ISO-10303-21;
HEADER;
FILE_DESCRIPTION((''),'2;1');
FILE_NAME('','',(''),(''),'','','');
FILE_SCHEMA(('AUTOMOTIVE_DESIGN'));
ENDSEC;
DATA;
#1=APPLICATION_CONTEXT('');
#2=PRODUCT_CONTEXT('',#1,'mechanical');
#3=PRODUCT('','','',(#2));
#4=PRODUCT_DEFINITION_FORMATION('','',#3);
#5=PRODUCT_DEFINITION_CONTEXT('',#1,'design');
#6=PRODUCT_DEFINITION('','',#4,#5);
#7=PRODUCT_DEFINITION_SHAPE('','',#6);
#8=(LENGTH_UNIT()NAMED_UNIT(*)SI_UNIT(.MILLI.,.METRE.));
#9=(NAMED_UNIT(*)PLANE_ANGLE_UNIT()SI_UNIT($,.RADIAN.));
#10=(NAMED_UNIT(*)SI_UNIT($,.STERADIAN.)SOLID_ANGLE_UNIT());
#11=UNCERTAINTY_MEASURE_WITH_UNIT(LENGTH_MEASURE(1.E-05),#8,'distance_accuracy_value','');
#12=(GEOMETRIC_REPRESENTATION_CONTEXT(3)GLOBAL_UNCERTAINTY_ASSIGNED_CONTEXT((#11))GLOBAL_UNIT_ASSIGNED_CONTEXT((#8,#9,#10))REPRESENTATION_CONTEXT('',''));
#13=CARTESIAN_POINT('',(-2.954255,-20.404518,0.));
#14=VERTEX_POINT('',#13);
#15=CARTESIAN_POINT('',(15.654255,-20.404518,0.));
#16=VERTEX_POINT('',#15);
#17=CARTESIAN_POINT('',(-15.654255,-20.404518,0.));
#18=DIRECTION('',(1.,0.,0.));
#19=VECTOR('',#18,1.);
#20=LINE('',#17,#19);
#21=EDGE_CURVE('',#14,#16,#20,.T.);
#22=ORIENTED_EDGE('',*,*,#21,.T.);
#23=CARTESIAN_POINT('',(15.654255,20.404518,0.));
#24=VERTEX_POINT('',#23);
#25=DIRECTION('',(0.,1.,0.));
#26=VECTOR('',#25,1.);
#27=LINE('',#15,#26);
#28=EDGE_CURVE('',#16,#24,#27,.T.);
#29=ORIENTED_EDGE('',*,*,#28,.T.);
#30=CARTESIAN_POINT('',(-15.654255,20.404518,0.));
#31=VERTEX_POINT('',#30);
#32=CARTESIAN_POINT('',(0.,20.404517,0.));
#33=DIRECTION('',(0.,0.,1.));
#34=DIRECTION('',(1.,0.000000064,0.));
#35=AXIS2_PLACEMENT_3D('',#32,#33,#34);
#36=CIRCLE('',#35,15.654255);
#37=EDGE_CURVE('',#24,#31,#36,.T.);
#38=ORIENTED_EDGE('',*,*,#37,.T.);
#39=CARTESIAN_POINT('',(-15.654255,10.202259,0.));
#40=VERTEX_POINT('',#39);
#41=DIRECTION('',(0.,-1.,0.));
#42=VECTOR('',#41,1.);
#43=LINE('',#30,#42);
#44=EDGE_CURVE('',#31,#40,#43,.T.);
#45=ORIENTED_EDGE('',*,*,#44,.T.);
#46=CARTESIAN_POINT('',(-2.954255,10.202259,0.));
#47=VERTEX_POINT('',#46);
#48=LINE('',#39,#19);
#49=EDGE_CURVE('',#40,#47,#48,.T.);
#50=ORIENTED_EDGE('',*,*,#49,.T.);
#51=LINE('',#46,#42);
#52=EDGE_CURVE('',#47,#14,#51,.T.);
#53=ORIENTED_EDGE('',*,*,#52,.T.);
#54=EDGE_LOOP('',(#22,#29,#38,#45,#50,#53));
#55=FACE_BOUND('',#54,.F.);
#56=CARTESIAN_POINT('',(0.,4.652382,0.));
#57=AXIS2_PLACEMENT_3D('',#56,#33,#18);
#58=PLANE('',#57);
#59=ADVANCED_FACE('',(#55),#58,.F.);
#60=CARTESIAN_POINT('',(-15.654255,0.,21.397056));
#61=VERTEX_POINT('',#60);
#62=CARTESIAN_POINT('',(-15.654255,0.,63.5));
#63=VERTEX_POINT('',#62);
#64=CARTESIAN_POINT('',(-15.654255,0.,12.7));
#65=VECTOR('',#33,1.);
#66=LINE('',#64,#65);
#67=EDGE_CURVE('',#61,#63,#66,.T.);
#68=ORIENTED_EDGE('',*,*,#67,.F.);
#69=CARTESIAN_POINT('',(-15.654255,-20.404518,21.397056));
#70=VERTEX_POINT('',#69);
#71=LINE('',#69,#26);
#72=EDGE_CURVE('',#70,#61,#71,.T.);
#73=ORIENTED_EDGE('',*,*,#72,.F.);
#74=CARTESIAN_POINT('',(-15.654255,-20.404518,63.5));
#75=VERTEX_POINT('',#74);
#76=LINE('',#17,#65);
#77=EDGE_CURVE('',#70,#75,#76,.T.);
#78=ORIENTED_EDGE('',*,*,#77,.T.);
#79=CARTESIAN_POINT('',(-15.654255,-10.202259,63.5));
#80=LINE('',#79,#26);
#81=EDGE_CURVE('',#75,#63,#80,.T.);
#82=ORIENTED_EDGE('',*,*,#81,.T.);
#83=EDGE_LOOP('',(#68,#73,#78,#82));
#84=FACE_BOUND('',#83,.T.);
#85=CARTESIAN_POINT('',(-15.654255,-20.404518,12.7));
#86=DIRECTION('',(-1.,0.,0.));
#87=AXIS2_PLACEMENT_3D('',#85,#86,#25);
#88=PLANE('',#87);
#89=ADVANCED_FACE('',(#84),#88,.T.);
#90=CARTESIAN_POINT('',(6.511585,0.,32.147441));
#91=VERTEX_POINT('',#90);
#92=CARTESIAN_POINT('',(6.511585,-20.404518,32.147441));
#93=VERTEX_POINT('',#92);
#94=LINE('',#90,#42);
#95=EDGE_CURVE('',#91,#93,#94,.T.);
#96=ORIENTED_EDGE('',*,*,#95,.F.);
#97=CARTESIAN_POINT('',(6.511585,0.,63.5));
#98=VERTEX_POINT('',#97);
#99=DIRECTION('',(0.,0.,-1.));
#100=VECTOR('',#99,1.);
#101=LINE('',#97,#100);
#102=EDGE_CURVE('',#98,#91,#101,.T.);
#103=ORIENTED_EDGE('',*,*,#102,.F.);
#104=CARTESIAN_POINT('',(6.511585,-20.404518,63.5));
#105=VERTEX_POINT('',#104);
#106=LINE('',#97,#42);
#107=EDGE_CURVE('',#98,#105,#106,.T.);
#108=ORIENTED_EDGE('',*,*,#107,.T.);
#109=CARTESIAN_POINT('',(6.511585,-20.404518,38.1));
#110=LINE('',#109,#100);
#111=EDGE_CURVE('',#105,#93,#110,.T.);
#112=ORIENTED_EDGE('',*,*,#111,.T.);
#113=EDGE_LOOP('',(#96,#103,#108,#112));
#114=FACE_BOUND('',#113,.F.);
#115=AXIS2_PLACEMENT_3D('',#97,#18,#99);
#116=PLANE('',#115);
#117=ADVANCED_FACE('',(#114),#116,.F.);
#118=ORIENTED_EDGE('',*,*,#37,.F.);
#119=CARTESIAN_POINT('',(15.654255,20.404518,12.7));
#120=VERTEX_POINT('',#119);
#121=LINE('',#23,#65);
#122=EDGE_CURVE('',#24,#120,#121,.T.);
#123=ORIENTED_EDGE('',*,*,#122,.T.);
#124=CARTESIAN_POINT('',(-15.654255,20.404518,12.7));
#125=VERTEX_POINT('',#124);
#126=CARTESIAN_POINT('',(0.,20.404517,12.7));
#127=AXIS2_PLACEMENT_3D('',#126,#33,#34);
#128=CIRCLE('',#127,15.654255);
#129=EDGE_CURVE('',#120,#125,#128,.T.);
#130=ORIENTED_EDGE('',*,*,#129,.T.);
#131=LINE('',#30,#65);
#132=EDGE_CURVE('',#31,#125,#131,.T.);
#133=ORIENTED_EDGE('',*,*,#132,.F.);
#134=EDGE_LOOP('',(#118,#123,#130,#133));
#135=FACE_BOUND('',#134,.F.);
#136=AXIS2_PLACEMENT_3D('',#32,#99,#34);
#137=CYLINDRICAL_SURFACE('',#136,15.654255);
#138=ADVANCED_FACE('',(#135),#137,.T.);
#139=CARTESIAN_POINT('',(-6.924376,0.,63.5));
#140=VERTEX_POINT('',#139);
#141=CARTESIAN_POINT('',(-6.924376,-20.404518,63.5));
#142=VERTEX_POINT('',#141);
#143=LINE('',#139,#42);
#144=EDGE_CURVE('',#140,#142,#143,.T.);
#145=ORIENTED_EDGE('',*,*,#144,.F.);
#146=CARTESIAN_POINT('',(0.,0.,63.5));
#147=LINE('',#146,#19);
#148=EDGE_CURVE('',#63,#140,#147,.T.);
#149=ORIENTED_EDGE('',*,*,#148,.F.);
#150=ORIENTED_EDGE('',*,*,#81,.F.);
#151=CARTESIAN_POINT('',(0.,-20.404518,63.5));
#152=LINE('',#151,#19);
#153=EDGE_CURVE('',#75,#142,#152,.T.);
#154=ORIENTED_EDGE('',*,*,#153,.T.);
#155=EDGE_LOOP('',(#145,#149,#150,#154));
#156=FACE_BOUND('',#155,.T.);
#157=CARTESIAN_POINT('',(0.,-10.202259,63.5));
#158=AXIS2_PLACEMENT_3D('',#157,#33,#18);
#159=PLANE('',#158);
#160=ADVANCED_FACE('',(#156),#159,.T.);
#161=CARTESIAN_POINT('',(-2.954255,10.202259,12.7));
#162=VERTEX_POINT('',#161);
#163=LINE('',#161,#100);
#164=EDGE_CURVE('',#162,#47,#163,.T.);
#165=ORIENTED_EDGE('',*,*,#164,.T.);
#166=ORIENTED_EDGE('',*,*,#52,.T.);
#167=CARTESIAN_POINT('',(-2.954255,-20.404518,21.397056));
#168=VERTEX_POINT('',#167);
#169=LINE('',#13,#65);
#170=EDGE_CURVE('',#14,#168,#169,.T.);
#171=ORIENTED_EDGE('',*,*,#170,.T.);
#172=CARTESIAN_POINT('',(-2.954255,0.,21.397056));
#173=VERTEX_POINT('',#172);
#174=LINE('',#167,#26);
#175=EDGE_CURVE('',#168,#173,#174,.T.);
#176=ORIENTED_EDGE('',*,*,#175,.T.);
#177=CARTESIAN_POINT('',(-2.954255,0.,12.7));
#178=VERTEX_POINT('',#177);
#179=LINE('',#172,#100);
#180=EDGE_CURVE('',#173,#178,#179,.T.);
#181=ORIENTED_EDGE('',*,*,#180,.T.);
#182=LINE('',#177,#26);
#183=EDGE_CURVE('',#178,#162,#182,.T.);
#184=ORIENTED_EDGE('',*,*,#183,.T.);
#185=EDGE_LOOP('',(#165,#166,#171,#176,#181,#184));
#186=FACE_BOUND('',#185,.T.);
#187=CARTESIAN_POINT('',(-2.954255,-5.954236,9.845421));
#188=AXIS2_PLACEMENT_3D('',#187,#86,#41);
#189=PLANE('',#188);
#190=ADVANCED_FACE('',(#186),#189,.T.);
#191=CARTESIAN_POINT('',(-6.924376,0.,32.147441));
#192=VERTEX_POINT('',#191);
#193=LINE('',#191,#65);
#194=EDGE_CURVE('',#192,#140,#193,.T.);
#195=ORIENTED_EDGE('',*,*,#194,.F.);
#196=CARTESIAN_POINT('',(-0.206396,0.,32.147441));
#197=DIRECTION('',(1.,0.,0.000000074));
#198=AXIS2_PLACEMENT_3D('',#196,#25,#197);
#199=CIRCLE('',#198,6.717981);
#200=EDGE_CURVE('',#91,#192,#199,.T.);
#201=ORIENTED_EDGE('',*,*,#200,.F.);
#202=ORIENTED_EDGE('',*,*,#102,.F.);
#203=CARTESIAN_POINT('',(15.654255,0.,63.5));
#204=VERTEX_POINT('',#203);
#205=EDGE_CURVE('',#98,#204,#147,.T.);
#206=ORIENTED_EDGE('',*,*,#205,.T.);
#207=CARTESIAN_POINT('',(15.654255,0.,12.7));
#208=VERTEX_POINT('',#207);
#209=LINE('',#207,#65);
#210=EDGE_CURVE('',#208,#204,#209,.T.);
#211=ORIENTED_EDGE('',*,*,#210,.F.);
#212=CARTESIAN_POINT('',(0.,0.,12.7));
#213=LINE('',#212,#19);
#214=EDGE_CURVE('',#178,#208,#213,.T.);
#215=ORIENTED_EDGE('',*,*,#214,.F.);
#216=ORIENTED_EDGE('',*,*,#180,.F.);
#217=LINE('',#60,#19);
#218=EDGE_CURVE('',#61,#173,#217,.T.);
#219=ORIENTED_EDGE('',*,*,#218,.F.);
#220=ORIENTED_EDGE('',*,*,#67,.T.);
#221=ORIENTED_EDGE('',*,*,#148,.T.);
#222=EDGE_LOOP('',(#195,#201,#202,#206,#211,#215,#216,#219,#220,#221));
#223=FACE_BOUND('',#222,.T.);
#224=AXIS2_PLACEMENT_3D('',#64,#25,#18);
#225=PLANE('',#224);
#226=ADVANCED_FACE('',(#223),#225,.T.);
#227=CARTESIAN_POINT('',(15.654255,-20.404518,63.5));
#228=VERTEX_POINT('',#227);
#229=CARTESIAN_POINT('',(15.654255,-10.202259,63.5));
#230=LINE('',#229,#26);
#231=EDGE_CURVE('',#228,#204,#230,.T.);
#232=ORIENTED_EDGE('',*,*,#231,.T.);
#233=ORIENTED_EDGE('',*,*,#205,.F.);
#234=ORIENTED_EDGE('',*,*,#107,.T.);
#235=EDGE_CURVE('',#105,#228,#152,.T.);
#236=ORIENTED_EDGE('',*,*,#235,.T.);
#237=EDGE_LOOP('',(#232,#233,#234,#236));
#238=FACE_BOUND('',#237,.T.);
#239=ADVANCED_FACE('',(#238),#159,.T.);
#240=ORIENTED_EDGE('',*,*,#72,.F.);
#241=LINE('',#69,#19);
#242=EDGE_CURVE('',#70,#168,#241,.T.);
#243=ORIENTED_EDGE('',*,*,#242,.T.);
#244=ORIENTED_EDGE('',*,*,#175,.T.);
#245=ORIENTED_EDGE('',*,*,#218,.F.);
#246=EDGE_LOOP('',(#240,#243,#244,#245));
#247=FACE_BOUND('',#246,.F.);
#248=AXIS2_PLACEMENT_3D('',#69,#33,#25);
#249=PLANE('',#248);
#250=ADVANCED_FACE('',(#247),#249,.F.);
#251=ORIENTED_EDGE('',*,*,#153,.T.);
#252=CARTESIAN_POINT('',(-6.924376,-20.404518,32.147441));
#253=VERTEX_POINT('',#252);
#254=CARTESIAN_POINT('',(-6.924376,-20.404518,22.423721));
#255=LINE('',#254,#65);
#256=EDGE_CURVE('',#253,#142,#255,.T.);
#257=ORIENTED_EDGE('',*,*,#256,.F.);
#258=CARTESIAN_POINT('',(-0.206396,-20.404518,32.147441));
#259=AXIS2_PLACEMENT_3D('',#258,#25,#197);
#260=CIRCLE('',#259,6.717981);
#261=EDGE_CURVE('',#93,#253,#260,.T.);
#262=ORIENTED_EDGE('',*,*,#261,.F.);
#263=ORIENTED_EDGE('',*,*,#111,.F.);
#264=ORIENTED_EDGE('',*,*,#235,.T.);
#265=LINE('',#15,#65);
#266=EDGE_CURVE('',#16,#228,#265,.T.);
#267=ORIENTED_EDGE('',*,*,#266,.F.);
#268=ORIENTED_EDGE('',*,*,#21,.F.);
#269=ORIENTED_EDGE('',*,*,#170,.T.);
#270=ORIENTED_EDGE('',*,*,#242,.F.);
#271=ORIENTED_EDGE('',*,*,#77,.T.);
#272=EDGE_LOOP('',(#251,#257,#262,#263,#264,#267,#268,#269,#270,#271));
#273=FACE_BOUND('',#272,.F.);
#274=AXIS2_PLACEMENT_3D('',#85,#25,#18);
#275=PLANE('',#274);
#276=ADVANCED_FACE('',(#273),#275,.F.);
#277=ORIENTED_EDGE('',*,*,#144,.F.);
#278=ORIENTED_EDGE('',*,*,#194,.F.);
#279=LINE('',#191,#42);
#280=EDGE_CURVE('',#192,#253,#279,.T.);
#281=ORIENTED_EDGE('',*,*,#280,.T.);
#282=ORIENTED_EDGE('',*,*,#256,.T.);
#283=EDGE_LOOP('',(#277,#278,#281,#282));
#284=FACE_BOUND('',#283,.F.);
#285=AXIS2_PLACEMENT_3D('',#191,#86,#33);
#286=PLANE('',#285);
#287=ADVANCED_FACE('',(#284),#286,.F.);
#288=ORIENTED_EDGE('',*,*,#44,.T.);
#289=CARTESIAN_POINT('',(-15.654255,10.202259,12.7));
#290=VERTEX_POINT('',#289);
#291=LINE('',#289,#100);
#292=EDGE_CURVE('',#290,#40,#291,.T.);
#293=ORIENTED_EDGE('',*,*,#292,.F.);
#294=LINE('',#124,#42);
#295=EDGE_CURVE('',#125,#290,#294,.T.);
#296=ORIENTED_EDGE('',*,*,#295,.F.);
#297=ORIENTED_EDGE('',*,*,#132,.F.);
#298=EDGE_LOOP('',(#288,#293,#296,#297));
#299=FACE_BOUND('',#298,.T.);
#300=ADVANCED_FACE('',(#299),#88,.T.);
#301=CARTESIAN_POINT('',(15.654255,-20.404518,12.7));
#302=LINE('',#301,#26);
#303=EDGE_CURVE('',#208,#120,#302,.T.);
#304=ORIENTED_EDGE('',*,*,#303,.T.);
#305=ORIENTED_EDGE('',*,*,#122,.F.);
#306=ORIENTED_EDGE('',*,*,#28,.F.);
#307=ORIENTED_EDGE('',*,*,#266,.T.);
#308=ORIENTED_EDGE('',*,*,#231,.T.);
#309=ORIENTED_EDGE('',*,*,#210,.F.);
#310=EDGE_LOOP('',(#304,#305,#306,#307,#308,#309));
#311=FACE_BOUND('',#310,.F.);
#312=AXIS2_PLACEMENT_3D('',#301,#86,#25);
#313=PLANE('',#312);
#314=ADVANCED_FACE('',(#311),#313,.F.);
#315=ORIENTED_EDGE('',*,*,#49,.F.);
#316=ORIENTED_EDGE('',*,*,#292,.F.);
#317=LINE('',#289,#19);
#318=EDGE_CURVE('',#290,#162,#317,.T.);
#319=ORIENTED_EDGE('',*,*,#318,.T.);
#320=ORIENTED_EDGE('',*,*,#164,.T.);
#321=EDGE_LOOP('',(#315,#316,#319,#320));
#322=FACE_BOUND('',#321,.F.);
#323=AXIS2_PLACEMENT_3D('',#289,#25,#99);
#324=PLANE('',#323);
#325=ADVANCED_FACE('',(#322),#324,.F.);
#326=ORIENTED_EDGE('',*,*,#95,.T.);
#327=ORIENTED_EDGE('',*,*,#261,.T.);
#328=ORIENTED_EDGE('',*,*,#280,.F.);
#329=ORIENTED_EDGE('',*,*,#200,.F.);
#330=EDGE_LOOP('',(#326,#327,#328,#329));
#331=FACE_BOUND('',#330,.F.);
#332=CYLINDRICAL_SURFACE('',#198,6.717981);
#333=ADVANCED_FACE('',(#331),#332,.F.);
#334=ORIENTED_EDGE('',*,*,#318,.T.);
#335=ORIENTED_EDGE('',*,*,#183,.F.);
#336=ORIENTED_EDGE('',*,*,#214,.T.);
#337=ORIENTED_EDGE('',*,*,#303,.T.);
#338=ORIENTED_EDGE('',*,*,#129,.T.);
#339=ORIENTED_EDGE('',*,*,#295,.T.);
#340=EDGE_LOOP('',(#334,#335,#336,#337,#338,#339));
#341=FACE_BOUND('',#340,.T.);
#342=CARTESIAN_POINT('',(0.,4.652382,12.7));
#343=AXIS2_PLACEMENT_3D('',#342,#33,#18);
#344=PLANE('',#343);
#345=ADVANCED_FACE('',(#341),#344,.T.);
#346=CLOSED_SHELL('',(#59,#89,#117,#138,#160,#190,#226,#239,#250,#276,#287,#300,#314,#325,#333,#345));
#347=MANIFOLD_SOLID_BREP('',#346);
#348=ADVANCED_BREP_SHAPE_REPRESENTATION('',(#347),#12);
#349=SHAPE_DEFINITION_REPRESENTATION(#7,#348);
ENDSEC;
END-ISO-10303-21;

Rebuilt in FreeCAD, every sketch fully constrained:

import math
import FreeCAD as App
import Part
import Sketcher
from FreeCAD import Vector
Q = App.Units.Quantity

doc = App.newDocument("Part")
body = doc.addObject("PartDesign::Body", "Body")

sketch1 = body.newObject("Sketcher::SketchObject", "Sketch")
sketch1.AttachmentSupport = (doc.getObject("XY_Plane"), [""])
sketch1.MapMode = "FlatFace"
sketch1.addGeometry([
    Part.LineSegment(Vector(-16, -20, 0), Vector(16, -20, 0)),
    Part.LineSegment(Vector(16, -20, 0), Vector(16, 20, 0)),
    Part.ArcOfCircle(Part.Circle(Vector(0, 20, 0), Vector(0, 0, 1), 16), math.radians(0), math.radians(180)),
    Part.LineSegment(Vector(-16, 20, 0), Vector(-16, -20, 0)),
], False)
sketch1.addConstraint([
    Sketcher.Constraint("Coincident", 0, 2, 1, 1),
    Sketcher.Constraint("Tangent", 1, 2, 2, 1),
    Sketcher.Constraint("Tangent", 2, 2, 3, 1),
    Sketcher.Constraint("Coincident", 3, 2, 0, 1),
    Sketcher.Constraint("Horizontal", 0),
    Sketcher.Constraint("Vertical", 1),
    Sketcher.Constraint("Vertical", 3),
    Sketcher.Constraint("Symmetric", 0, 2, 2, 2, -1, 1),
    Sketcher.Constraint("Radius", 2, 15.654255),
    Sketcher.Constraint("DistanceY", 1, 1, 1, 2, 40.809036),
])
pad1 = body.newObject("PartDesign::Pad", "Pad")
pad1.Profile = sketch1
pad1.Length = Q("0.5 in")

sketch2 = body.newObject("Sketcher::SketchObject", "Sketch001")
sketch2.AttachmentSupport = (doc.getObject("XY_Plane"), [""])
sketch2.MapMode = "FlatFace"
sketch2.AttachmentOffset = App.Placement(Vector(0, 0, 0.5 * 25.4), App.Rotation())
sketch2.addGeometry([
    Part.LineSegment(Vector(-16, 0, 0), Vector(-16, -20, 0)),
    Part.LineSegment(Vector(-16, -20, 0), Vector(16, -20, 0)),
    Part.LineSegment(Vector(16, -20, 0), Vector(16, 0, 0)),
    Part.LineSegment(Vector(16, 0, 0), Vector(-16, 0, 0)),
], False)
sketch2.addConstraint([
    Sketcher.Constraint("Coincident", 0, 2, 1, 1),
    Sketcher.Constraint("Coincident", 1, 2, 2, 1),
    Sketcher.Constraint("Coincident", 2, 2, 3, 1),
    Sketcher.Constraint("Coincident", 3, 2, 0, 1),
    Sketcher.Constraint("Vertical", 0),
    Sketcher.Constraint("Horizontal", 1),
    Sketcher.Constraint("Vertical", 2),
    Sketcher.Constraint("Horizontal", 3),
    Sketcher.Constraint("Symmetric", 2, 2, 3, 2, -1, 1),
    Sketcher.Constraint("DistanceX", 1, 1, 1, 2, 31.30851),
    Sketcher.Constraint("DistanceY", 0, 2, 0, 1, 20.404518),
])
pad2 = body.newObject("PartDesign::Pad", "Pad001")
pad2.Profile = sketch2
pad2.Length = Q("2 in")

sketch3 = body.newObject("Sketcher::SketchObject", "Sketch002")
sketch3.AttachmentSupport = (doc.getObject("XZ_Plane"), [""])
sketch3.MapMode = "FlatFace"
sketch3.addGeometry([
    Part.LineSegment(Vector(-7, 64, 0), Vector(7, 64, 0)),
    Part.LineSegment(Vector(7, 64, 0), Vector(7, 32, 0)),
    Part.ArcOfCircle(Part.Circle(Vector(0, 32, 0), Vector(0, 0, 1), 7), math.radians(180), math.radians(360)),
    Part.LineSegment(Vector(-7, 32, 0), Vector(-7, 64, 0)),
], False)
sketch3.addConstraint([
    Sketcher.Constraint("Coincident", 0, 2, 1, 1),
    Sketcher.Constraint("Tangent", 1, 2, 2, 2),
    Sketcher.Constraint("Tangent", 2, 1, 3, 1),
    Sketcher.Constraint("Coincident", 3, 2, 0, 1),
    Sketcher.Constraint("Horizontal", 0),
    Sketcher.Constraint("Vertical", 1),
    Sketcher.Constraint("Vertical", 3),
    Sketcher.Constraint("DistanceY", -1, 1, 0, 2, Q("2.5 in")),
    Sketcher.Constraint("Radius", 2, 6.717981),
    Sketcher.Constraint("DistanceY", 1, 2, 1, 1, 31.352559),
    Sketcher.Constraint("DistanceX", 2, 3, -1, 1, 0.206396),
])
pocket1 = body.newObject("PartDesign::Pocket", "Pocket")
pocket1.Profile = sketch3
pocket1.Length = Q("1 in")
pocket1.Reversed = True

sketch4 = body.newObject("Sketcher::SketchObject", "Sketch003")
sketch4.AttachmentSupport = (doc.getObject("YZ_Plane"), [""])
sketch4.MapMode = "FlatFace"
sketch4.AttachmentOffset = App.Placement(Vector(0, 0, -15.654255), App.Rotation())
sketch4.addGeometry([
    Part.LineSegment(Vector(0, 13, 0), Vector(10, 13, 0)),
    Part.LineSegment(Vector(10, 13, 0), Vector(10, 0, 0)),
    Part.LineSegment(Vector(10, 0, 0), Vector(-20, 0, 0)),
    Part.LineSegment(Vector(-20, 0, 0), Vector(-20, 21, 0)),
    Part.LineSegment(Vector(-20, 21, 0), Vector(0, 21, 0)),
    Part.LineSegment(Vector(0, 21, 0), Vector(0, 13, 0)),
], False)
sketch4.addConstraint([
    Sketcher.Constraint("Coincident", 0, 2, 1, 1),
    Sketcher.Constraint("Coincident", 1, 2, 2, 1),
    Sketcher.Constraint("Coincident", 2, 2, 3, 1),
    Sketcher.Constraint("Coincident", 3, 2, 4, 1),
    Sketcher.Constraint("Coincident", 4, 2, 5, 1),
    Sketcher.Constraint("Coincident", 5, 2, 0, 1),
    Sketcher.Constraint("Horizontal", 0),
    Sketcher.Constraint("Vertical", 1),
    Sketcher.Constraint("Horizontal", 2),
    Sketcher.Constraint("Vertical", 3),
    Sketcher.Constraint("Horizontal", 4),
    Sketcher.Constraint("Vertical", 5),
    Sketcher.Constraint("PointOnObject", 1, 2, -1),
    Sketcher.Constraint("PointOnObject", 4, 2, -2),
    Sketcher.Constraint("DistanceY", 1, 2, 1, 1, Q("0.5 in")),
    Sketcher.Constraint("DistanceX", 0, 1, 0, 2, 10.202259),
    Sketcher.Constraint("DistanceX", 2, 2, 2, 1, 30.606777),
    Sketcher.Constraint("DistanceY", 3, 1, 3, 2, 21.397056),
])
pocket2 = body.newObject("PartDesign::Pocket", "Pocket001")
pocket2.Profile = sketch4
pocket2.Length = Q("0.5 in")
pocket2.Reversed = True

doc.recompute()
